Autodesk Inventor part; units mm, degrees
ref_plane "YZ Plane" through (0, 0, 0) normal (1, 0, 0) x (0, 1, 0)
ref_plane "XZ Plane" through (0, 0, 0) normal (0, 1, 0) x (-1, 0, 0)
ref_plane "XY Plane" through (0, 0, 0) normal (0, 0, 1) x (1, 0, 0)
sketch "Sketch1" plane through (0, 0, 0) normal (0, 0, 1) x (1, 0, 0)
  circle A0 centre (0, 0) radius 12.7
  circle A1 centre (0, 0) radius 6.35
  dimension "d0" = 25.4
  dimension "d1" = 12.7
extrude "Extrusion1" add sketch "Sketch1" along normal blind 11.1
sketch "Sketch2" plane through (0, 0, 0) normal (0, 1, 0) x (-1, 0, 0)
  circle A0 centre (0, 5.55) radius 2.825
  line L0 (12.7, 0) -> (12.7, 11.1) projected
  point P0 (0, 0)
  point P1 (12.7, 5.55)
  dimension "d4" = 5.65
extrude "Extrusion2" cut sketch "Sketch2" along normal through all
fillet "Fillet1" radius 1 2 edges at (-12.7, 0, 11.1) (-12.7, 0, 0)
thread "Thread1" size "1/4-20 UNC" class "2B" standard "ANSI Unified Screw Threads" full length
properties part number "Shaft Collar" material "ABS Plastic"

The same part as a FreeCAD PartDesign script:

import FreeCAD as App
import Part
import Sketcher

V = App.Vector
Q = App.Units.Quantity


def edges_at(feature, points):
    """Names of the edges that pass closest to the given points."""
    edges = feature.Shape.Edges
    near = lambda p: min(range(len(edges)), key=lambda i: edges[i].distToShape(Part.Vertex(*p))[0])
    return sorted({f"Edge{near(p) + 1}" for p in points})

doc = App.newDocument("Part")
body = doc.addObject("PartDesign::Body", "Body")

# Sketch on XY plane
sketch1 = doc.addObject("Sketcher::SketchObject", "Sketch")
body.addObject(sketch1)
sketch1.AttachmentSupport = (doc.XY_Plane, [""])
sketch1.MapMode = "FlatFace"
sketch1.addGeometry([
    Part.Circle(V(0, 0, 0), V(0, 0, 1), 13),
    Part.Circle(V(0, 0, 0), V(0, 0, 1), 6),
], False)
sketch1.addConstraint([
    Sketcher.Constraint("Coincident", 0, 3, -1, 1),
    Sketcher.Constraint("Coincident", 1, 3, -1, 1),
    Sketcher.Constraint("Diameter", 0, Q("1 in")),
    Sketcher.Constraint("Diameter", 1, Q("0.5 in")),
])
pad1 = doc.addObject("PartDesign::Pad", "Pad")
body.addObject(pad1)
pad1.Profile = sketch1
pad1.Length = Q("0.4370079 in")

# Sketch on XZ plane
sketch2 = doc.addObject("Sketcher::SketchObject", "Sketch001")
body.addObject(sketch2)
sketch2.AttachmentSupport = (doc.XZ_Plane, [""])
sketch2.MapMode = "FlatFace"
sketch2.addGeometry(Part.Circle(V(0, 5.5, 0), V(0, 0, 1), 2.8), False)
sketch2.addConstraint([
    Sketcher.Constraint("PointOnObject", 0, 3, -2),
    Sketcher.Constraint("Diameter", 0, Q("5.65 mm")),
    Sketcher.Constraint("DistanceY", -1, 1, 0, 3, Q("0.2185 in")),
])
pocket1 = doc.addObject("PartDesign::Pocket", "Pocket")
body.addObject(pocket1)
pocket1.Profile = sketch2
pocket1.Type = "ThroughAll"
doc.recompute()

fillet = doc.addObject("PartDesign::Fillet", "Fillet")
body.addObject(fillet)
fillet.Base = (pocket1, edges_at(pocket1, [(-12.7, 0, 11.1), (-12.7, 0, 0)]))
fillet.Radius = 1

doc.recompute()
